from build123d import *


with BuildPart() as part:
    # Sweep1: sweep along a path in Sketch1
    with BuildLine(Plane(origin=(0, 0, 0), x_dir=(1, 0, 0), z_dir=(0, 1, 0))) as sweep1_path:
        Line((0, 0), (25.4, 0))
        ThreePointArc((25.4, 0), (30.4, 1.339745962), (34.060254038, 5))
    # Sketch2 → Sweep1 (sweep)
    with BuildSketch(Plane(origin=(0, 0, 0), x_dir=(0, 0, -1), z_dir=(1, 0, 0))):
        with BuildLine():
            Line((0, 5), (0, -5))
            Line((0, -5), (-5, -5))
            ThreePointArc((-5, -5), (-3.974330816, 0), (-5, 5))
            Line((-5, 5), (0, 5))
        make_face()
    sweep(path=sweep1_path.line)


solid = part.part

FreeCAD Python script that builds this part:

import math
import FreeCAD as App
import Part
import Sketcher

V = App.Vector

doc = App.newDocument("Part")
body = doc.addObject("PartDesign::Body", "Body")

sketch1 = doc.addObject("Sketcher::SketchObject", "Sketch")
body.addObject(sketch1)
sketch1.AttachmentSupport = (doc.YZ_Plane, [""])
sketch1.MapMode = "FlatFace"
sketch1.addGeometry(Part.LineSegment(V(-5, 0, 0), V(5, 0, 0)), False)
sketch1.addGeometry(Part.LineSegment(V(5, 0, 0), V(5, 5, 0)), False)
sketch1.addGeometry(Part.ArcOfCircle(Part.Circle(V(0, 17, 0), V(0, 0, 1), 13), math.radians(-113), math.radians(-67)), False)
sketch1.addGeometry(Part.LineSegment(V(-5, 5, 0), V(-5, 0, 0)), False)
sketch1.addConstraint(Sketcher.Constraint("Coincident", 0, 2, 1, 1))
sketch1.addConstraint(Sketcher.Constraint("Coincident", 1, 2, 2, 2))
sketch1.addConstraint(Sketcher.Constraint("Coincident", 2, 1, 3, 1))
sketch1.addConstraint(Sketcher.Constraint("Coincident", 3, 2, 0, 1))
sketch1.addConstraint(Sketcher.Constraint("Horizontal", 0))
sketch1.addConstraint(Sketcher.Constraint("Vertical", 1))
sketch1.addConstraint(Sketcher.Constraint("Vertical", 3))
sketch1.addConstraint(Sketcher.Constraint("Symmetric", 0, 2, 3, 2, -1, 1))
sketch1.addConstraint(Sketcher.Constraint("PointOnObject", 2, 3, -2))
sketch1.addConstraint(Sketcher.Constraint("Radius", 2, 12.7))
sketch1.addConstraint(Sketcher.Constraint("DistanceX", 0, 1, 0, 2, 10.0))
sketch1.addConstraint(Sketcher.Constraint("DistanceY", 1, 1, 1, 2, 5.0))

sketch2 = doc.addObject("Sketcher::SketchObject", "Sketch001")
body.addObject(sketch2)
sketch2.AttachmentSupport = (doc.XZ_Plane, [""])
sketch2.MapMode = "FlatFace"
sketch2.addGeometry(Part.LineSegment(V(0, 0, 0), V(25, 0, 0)), False)
sketch2.addGeometry(Part.ArcOfCircle(Part.Circle(V(25, -10, 0), V(0, 0, 1), 10), math.radians(30), math.radians(90)), False)
sketch2.addConstraint(Sketcher.Constraint("Tangent", 0, 2, 1, 2))
sketch2.addConstraint(Sketcher.Constraint("Horizontal", 0))
sketch2.addConstraint(Sketcher.Constraint("Coincident", 0, 1, -1, 1))
sketch2.addConstraint(Sketcher.Constraint("Radius", 1, 10.0))
sketch2.addConstraint(Sketcher.Constraint("DistanceX", 0, 1, 0, 2, 25.4))
sketch2.addConstraint(Sketcher.Constraint("DistanceY", 1, 1, -1, 1, 5.0))
doc.recompute()

additivepipe = doc.addObject("PartDesign::AdditivePipe", "AdditivePipe")
body.addObject(additivepipe)
additivepipe.Profile = sketch1
additivepipe.Spine = (sketch2, ["Edge1", "Edge2"])

doc.recompute()
